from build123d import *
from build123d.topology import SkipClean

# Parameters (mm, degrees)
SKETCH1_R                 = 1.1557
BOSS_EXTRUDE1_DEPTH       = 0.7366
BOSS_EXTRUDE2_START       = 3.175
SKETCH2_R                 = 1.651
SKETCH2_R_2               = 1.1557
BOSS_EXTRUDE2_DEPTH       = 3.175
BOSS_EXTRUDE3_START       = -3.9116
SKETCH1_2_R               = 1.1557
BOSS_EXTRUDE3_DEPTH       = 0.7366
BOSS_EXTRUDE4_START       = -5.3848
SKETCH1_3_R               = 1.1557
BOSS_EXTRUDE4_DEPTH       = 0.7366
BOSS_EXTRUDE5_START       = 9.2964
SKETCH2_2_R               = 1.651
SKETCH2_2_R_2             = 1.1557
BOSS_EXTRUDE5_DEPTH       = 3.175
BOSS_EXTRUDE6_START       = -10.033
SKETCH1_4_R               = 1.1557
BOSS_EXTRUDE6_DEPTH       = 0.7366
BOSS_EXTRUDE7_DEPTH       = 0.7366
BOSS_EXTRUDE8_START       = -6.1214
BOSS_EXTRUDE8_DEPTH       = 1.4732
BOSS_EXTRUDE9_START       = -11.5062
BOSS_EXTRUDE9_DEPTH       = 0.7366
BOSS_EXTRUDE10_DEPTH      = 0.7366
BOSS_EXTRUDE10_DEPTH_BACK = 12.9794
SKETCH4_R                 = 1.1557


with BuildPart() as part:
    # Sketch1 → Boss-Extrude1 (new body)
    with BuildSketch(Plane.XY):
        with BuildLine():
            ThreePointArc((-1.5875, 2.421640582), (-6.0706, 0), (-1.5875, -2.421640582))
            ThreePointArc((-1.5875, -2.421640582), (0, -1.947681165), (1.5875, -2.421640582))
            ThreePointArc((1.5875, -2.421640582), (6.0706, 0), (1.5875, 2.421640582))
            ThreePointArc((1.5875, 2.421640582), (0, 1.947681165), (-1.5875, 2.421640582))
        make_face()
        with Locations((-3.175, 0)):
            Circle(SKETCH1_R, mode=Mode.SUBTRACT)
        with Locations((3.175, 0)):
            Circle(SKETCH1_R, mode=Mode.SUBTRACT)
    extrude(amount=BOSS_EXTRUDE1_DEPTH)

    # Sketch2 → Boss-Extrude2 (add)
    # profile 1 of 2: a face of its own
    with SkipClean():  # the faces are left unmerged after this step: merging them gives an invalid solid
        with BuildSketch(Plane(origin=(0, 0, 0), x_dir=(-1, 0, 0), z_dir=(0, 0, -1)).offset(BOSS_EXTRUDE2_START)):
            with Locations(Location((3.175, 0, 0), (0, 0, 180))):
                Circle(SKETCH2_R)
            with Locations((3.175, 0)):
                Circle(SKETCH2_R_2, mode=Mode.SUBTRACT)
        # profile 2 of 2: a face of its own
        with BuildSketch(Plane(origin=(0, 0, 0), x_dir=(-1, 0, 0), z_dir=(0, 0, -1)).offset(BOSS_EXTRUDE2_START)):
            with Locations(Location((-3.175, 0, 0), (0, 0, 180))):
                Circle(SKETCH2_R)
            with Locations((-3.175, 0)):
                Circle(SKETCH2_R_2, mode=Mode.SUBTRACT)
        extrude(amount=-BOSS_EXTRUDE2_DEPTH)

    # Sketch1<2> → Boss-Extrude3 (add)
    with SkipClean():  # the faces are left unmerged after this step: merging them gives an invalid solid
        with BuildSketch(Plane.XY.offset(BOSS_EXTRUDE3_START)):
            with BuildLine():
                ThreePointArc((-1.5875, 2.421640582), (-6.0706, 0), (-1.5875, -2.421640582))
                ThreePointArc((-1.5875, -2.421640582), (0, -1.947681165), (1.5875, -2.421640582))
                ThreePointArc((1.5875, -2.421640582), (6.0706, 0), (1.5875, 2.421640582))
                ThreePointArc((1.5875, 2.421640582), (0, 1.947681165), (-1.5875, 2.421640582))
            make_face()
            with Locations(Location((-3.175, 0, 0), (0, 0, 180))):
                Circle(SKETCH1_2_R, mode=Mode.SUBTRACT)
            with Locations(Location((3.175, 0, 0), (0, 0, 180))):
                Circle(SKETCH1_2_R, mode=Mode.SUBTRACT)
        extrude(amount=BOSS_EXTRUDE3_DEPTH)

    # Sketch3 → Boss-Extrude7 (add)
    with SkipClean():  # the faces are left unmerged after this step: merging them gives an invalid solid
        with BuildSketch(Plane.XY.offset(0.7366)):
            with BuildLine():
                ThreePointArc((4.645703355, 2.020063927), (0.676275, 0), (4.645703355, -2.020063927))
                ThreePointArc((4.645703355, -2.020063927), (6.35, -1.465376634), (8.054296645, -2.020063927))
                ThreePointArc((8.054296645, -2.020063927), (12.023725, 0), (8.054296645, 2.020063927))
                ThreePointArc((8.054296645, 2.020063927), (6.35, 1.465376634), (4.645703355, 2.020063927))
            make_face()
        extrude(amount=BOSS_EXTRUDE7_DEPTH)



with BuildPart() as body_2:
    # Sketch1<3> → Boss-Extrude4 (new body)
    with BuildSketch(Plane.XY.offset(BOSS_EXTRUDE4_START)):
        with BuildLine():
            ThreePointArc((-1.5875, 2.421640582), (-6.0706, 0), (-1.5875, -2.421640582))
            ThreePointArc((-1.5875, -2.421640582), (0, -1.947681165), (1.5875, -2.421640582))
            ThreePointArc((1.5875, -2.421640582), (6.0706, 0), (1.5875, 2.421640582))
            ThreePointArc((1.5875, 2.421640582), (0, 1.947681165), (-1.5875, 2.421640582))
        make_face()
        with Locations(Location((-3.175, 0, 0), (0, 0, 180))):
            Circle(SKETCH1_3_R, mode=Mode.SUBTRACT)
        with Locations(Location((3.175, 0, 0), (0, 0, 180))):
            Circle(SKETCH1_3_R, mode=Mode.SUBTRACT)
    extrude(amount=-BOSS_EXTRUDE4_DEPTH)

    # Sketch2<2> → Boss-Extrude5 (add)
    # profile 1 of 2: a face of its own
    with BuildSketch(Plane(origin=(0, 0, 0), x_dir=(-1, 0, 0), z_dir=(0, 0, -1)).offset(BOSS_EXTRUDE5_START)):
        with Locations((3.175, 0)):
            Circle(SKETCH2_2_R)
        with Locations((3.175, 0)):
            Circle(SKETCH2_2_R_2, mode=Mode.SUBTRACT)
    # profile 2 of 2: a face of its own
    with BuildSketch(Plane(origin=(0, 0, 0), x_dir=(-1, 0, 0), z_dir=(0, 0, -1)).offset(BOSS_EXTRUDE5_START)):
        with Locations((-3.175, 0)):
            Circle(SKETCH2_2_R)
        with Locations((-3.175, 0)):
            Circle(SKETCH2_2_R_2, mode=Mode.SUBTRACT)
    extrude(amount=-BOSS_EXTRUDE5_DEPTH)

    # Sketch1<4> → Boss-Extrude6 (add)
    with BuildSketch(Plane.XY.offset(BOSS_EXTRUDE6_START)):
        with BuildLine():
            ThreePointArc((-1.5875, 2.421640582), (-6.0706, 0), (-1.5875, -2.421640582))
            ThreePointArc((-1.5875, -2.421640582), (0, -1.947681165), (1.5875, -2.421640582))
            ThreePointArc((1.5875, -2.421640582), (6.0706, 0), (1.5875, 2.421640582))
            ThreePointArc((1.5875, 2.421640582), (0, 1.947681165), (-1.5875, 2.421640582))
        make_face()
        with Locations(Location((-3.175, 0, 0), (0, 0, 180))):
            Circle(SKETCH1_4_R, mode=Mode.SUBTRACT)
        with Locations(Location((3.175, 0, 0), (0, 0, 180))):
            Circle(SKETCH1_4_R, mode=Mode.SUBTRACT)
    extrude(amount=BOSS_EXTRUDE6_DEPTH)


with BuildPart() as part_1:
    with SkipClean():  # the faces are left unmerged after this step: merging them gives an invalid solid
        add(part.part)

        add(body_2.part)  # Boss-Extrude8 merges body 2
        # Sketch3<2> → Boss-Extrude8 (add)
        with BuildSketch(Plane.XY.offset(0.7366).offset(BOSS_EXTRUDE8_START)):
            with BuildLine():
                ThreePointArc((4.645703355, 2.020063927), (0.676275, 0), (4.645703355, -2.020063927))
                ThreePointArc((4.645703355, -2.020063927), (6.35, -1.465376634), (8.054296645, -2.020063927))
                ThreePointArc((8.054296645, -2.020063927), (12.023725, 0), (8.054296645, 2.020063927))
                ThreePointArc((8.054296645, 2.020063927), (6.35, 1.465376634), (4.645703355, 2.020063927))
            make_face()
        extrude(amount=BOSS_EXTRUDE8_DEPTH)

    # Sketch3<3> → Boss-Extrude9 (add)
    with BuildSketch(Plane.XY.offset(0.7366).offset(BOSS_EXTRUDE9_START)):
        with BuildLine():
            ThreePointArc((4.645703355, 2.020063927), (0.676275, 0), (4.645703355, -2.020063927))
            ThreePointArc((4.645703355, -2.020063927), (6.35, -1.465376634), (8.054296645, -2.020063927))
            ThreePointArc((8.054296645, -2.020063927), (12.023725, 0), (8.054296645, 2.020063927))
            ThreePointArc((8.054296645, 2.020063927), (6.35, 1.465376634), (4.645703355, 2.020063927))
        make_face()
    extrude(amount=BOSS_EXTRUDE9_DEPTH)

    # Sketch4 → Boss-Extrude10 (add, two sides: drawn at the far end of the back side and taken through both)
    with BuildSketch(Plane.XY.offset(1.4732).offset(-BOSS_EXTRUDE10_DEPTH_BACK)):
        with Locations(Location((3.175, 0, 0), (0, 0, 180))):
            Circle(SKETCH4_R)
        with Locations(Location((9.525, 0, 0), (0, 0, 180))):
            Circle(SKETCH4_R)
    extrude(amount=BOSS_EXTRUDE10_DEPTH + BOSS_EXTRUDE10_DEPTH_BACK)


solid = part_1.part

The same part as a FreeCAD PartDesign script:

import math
import FreeCAD as App
import Part
import Sketcher
from FreeCAD import Vector
Q = App.Units.Quantity

doc = App.newDocument("Part")
body = doc.addObject("PartDesign::Body", "Body")

# Sketch on XY plane
sketch1 = body.newObject("Sketcher::SketchObject", "Sketch")
sketch1.AttachmentSupport = (doc.getObject("XY_Plane"), [""])
sketch1.MapMode = "FlatFace"
sketch1.addGeometry([
    Part.ArcOfCircle(Part.Circle(Vector(-3.175, 0, 0), Vector(0, 0, 1), 2.8956), math.radians(56.753262), math.radians(303.246738)),  # 0
    Part.ArcOfCircle(Part.Circle(Vector(0, -4.843281, 0), Vector(0, 0, 1), 2.8956), math.radians(56.753262), math.radians(123.246738)),  # 1
    Part.ArcOfCircle(Part.Circle(Vector(3.175, 0, 0), Vector(0, 0, 1), 2.8956), math.radians(-123.246738), math.radians(123.246738)),  # 2
    Part.ArcOfCircle(Part.Circle(Vector(0, 4.843281, 0), Vector(0, 0, 1), 2.8956), math.radians(-123.246738), math.radians(-56.753262)),  # 3
    Part.Circle(Vector(-3.175, 0, 0), Vector(0, 0, 1), 1.1557),  # 4
    Part.Circle(Vector(3.175, 0, 0), Vector(0, 0, 1), 1.1557),  # 5
], False)
sketch1.addConstraint([
    Sketcher.Constraint("Tangent", 0, 2, 1, 2),
    Sketcher.Constraint("Tangent", 1, 1, 2, 1),
    Sketcher.Constraint("Tangent", 2, 2, 3, 2),
    Sketcher.Constraint("Tangent", 3, 1, 0, 1),
    Sketcher.Constraint("Coincident", 4, 3, 0, 3),
    Sketcher.Constraint("Coincident", 5, 3, 2, 3),
    Sketcher.Constraint("Equal", 0, 1),
    Sketcher.Constraint("Equal", 1, 2),
    Sketcher.Constraint("Equal", 2, 3),
    Sketcher.Constraint("Equal", 4, 5),
    Sketcher.Constraint("Symmetric", 0, 3, 2, 3, -1, 1),
    Sketcher.Constraint("PointOnObject", 0, 3, -1),
    Sketcher.Constraint("Diameter", 4, Q("0.091 in")),
    Sketcher.Constraint("Radius", 0, Q("0.114 in")),
    Sketcher.Constraint("DistanceX", 0, 3, 2, 3, Q("0.25 in")),
])
pad1 = body.newObject("PartDesign::Pad", "Pad")
pad1.Profile = sketch1
pad1.Length = Q("0.029 in")

# Sketch on XY plane
sketch2 = body.newObject("Sketcher::SketchObject", "Sketch001")
sketch2.AttachmentSupport = (doc.getObject("XY_Plane"), [""])
sketch2.MapMode = "FlatFace"
sketch2.AttachmentOffset = App.Placement(Vector(0, 0, -0.125 * 25.4), App.Rotation())
sketch2.addGeometry([
    Part.Circle(Vector(-3.175, 0, 0), Vector(0, 0, 1), 1.651),
    Part.Circle(Vector(-3.175, 0, 0), Vector(0, 0, 1), 1.1557),
    Part.Circle(Vector(3.175, 0, 0), Vector(0, 0, 1), 1.651),
    Part.Circle(Vector(3.175, 0, 0), Vector(0, 0, 1), 1.1557),
], False)
sketch2.addConstraint([
    Sketcher.Constraint("Coincident", 1, 3, 0, 3),
    Sketcher.Constraint("Coincident", 3, 3, 2, 3),
    Sketcher.Constraint("Equal", 0, 2),
    Sketcher.Constraint("Equal", 1, 3),
    Sketcher.Constraint("Symmetric", 0, 3, 2, 3, -1, 1),
    Sketcher.Constraint("PointOnObject", 0, 3, -1),
    Sketcher.Constraint("Diameter", 0, Q("0.13 in")),
    Sketcher.Constraint("Diameter", 1, Q("0.091 in")),
    Sketcher.Constraint("DistanceX", 0, 3, 2, 3, Q("0.25 in")),
])
pad2 = body.newObject("PartDesign::Pad", "Pad001")
pad2.Profile = sketch2
pad2.Length = Q("0.125 in")

# Sketch on XY plane
sketch3 = body.newObject("Sketcher::SketchObject", "Sketch002")
sketch3.AttachmentSupport = (doc.getObject("XY_Plane"), [""])
sketch3.MapMode = "FlatFace"
sketch3.AttachmentOffset = App.Placement(Vector(0, 0, -0.154 * 25.4), App.Rotation())
sketch3.addGeometry([
    Part.ArcOfCircle(Part.Circle(Vector(-3.175, 0, 0), Vector(0, 0, 1), 2.8956), math.radians(56.753262), math.radians(303.246738)),  # 0
    Part.ArcOfCircle(Part.Circle(Vector(0, -4.843281, 0), Vector(0, 0, 1), 2.8956), math.radians(56.753262), math.radians(123.246738)),  # 1
    Part.ArcOfCircle(Part.Circle(Vector(3.175, 0, 0), Vector(0, 0, 1), 2.8956), math.radians(-123.246738), math.radians(123.246738)),  # 2
    Part.ArcOfCircle(Part.Circle(Vector(0, 4.843281, 0), Vector(0, 0, 1), 2.8956), math.radians(-123.246738), math.radians(-56.753262)),  # 3
    Part.Circle(Vector(-3.175, 0, 0), Vector(0, 0, 1), 1.1557),  # 4
    Part.Circle(Vector(3.175, 0, 0), Vector(0, 0, 1), 1.1557),  # 5
], False)
sketch3.addConstraint([
    Sketcher.Constraint("Tangent", 0, 2, 1, 2),
    Sketcher.Constraint("Tangent", 1, 1, 2, 1),
    Sketcher.Constraint("Tangent", 2, 2, 3, 2),
    Sketcher.Constraint("Tangent", 3, 1, 0, 1),
    Sketcher.Constraint("Coincident", 4, 3, 0, 3),
    Sketcher.Constraint("Coincident", 5, 3, 2, 3),
    Sketcher.Constraint("Equal", 0, 1),
    Sketcher.Constraint("Equal", 1, 2),
    Sketcher.Constraint("Equal", 2, 3),
    Sketcher.Constraint("Equal", 4, 5),
    Sketcher.Constraint("Symmetric", 0, 3, 2, 3, -1, 1),
    Sketcher.Constraint("PointOnObject", 0, 3, -1),
    Sketcher.Constraint("Diameter", 4, Q("0.091 in")),
    Sketcher.Constraint("Radius", 0, Q("0.114 in")),
    Sketcher.Constraint("DistanceX", 0, 3, 2, 3, Q("0.25 in")),
])
pad3 = body.newObject("PartDesign::Pad", "Pad002")
pad3.Profile = sketch3
pad3.Length = Q("0.029 in")

# Sketch on XY plane
sketch4 = body.newObject("Sketcher::SketchObject", "Sketch003")
sketch4.AttachmentSupport = (doc.getObject("XY_Plane"), [""])
sketch4.MapMode = "FlatFace"
sketch4.AttachmentOffset = App.Placement(Vector(0, 0, 0.029 * 25.4), App.Rotation())
sketch4.addGeometry([
    Part.ArcOfCircle(Part.Circle(Vector(3.175, 0, 0), Vector(0, 0, 1), 2.498725), math.radians(53.943587), math.radians(306.056413)),
    Part.ArcOfCircle(Part.Circle(Vector(6.35, -4.360977, 0), Vector(0, 0, 1), 2.8956), math.radians(53.943587), math.radians(126.056413)),
    Part.ArcOfCircle(Part.Circle(Vector(9.525, 0, 0), Vector(0, 0, 1), 2.498725), math.radians(-126.056413), math.radians(126.056413)),
    Part.ArcOfCircle(Part.Circle(Vector(6.35, 4.360977, 0), Vector(0, 0, 1), 2.8956), math.radians(-126.056413), math.radians(-53.943587)),
], False)
sketch4.addConstraint([
    Sketcher.Constraint("Tangent", 0, 2, 1, 2),
    Sketcher.Constraint("Tangent", 1, 1, 2, 1),
    Sketcher.Constraint("Tangent", 2, 2, 3, 2),
    Sketcher.Constraint("Tangent", 3, 1, 0, 1),
    Sketcher.Constraint("Equal", 0, 2),
    Sketcher.Constraint("Equal", 1, 3),
    Sketcher.Constraint("Symmetric", 1, 3, 3, 3, -1),
    Sketcher.Constraint("Radius", 1, Q("0.114 in")),
    Sketcher.Constraint("DistanceX", -1, 1, 1, 3, Q("0.25 in")),
    Sketcher.Constraint("DistanceX", 0, 3, 2, 3, Q("0.25 in")),
    Sketcher.Constraint("Radius", 0, Q("2.498725 mm")),
])
pad4 = body.newObject("PartDesign::Pad", "Pad003")
pad4.Profile = sketch4
pad4.Length = Q("0.029 in")
body2 = doc.addObject("PartDesign::Body", "Body001")

# Sketch on XY plane
sketch5 = body2.newObject("Sketcher::SketchObject", "Sketch004")
sketch5.AttachmentSupport = (doc.getObject("XY_Plane001"), [""])
sketch5.MapMode = "FlatFace"
sketch5.AttachmentOffset = App.Placement(Vector(0, 0, -0.212 * 25.4), App.Rotation())
sketch5.addGeometry([
    Part.ArcOfCircle(Part.Circle(Vector(-3.175, 0, 0), Vector(0, 0, 1), 2.8956), math.radians(56.753262), math.radians(303.246738)),  # 0
    Part.ArcOfCircle(Part.Circle(Vector(0, -4.843281, 0), Vector(0, 0, 1), 2.8956), math.radians(56.753262), math.radians(123.246738)),  # 1
    Part.ArcOfCircle(Part.Circle(Vector(3.175, 0, 0), Vector(0, 0, 1), 2.8956), math.radians(-123.246738), math.radians(123.246738)),  # 2
    Part.ArcOfCircle(Part.Circle(Vector(0, 4.843281, 0), Vector(0, 0, 1), 2.8956), math.radians(-123.246738), math.radians(-56.753262)),  # 3
    Part.Circle(Vector(-3.175, 0, 0), Vector(0, 0, 1), 1.1557),  # 4
    Part.Circle(Vector(3.175, 0, 0), Vector(0, 0, 1), 1.1557),  # 5
], False)
sketch5.addConstraint([
    Sketcher.Constraint("Tangent", 0, 2, 1, 2),
    Sketcher.Constraint("Tangent", 1, 1, 2, 1),
    Sketcher.Constraint("Tangent", 2, 2, 3, 2),
    Sketcher.Constraint("Tangent", 3, 1, 0, 1),
    Sketcher.Constraint("Coincident", 4, 3, 0, 3),
    Sketcher.Constraint("Coincident", 5, 3, 2, 3),
    Sketcher.Constraint("Equal", 0, 1),
    Sketcher.Constraint("Equal", 1, 2),
    Sketcher.Constraint("Equal", 2, 3),
    Sketcher.Constraint("Equal", 4, 5),
    Sketcher.Constraint("Symmetric", 0, 3, 2, 3, -1, 1),
    Sketcher.Constraint("PointOnObject", 0, 3, -1),
    Sketcher.Constraint("Diameter", 4, Q("0.091 in")),
    Sketcher.Constraint("Radius", 0, Q("0.114 in")),
    Sketcher.Constraint("DistanceX", 0, 3, 2, 3, Q("0.25 in")),
])
pad5 = body2.newObject("PartDesign::Pad", "Pad004")
pad5.Profile = sketch5
pad5.Length = Q("0.029 in")
pad5.Reversed = True

# Sketch on XY plane
sketch6 = body2.newObject("Sketcher::SketchObject", "Sketch005")
sketch6.AttachmentSupport = (doc.getObject("XY_Plane001"), [""])
sketch6.MapMode = "FlatFace"
sketch6.AttachmentOffset = App.Placement(Vector(0, 0, -0.366 * 25.4), App.Rotation())
sketch6.addGeometry([
    Part.Circle(Vector(-3.175, 0, 0), Vector(0, 0, 1), 1.651),
    Part.Circle(Vector(-3.175, 0, 0), Vector(0, 0, 1), 1.1557),
    Part.Circle(Vector(3.175, 0, 0), Vector(0, 0, 1), 1.651),
    Part.Circle(Vector(3.175, 0, 0), Vector(0, 0, 1), 1.1557),
], False)
sketch6.addConstraint([
    Sketcher.Constraint("Coincident", 1, 3, 0, 3),
    Sketcher.Constraint("Coincident", 3, 3, 2, 3),
    Sketcher.Constraint("Equal", 0, 2),
    Sketcher.Constraint("Equal", 1, 3),
    Sketcher.Constraint("Symmetric", 0, 3, 2, 3, -1, 1),
    Sketcher.Constraint("PointOnObject", 0, 3, -1),
    Sketcher.Constraint("Diameter", 0, Q("0.13 in")),
    Sketcher.Constraint("Diameter", 1, Q("0.091 in")),
    Sketcher.Constraint("DistanceX", 0, 3, 2, 3, Q("0.25 in")),
])
pad6 = body2.newObject("PartDesign::Pad", "Pad005")
pad6.Profile = sketch6
pad6.Length = Q("0.125 in")

# Sketch on XY plane
sketch7 = body2.newObject("Sketcher::SketchObject", "Sketch006")
sketch7.AttachmentSupport = (doc.getObject("XY_Plane001"), [""])
sketch7.MapMode = "FlatFace"
sketch7.AttachmentOffset = App.Placement(Vector(0, 0, -0.395 * 25.4), App.Rotation())
sketch7.addGeometry([
    Part.ArcOfCircle(Part.Circle(Vector(-3.175, 0, 0), Vector(0, 0, 1), 2.8956), math.radians(56.753262), math.radians(303.246738)),  # 0
    Part.ArcOfCircle(Part.Circle(Vector(0, -4.843281, 0), Vector(0, 0, 1), 2.8956), math.radians(56.753262), math.radians(123.246738)),  # 1
    Part.ArcOfCircle(Part.Circle(Vector(3.175, 0, 0), Vector(0, 0, 1), 2.8956), math.radians(-123.246738), math.radians(123.246738)),  # 2
    Part.ArcOfCircle(Part.Circle(Vector(0, 4.843281, 0), Vector(0, 0, 1), 2.8956), math.radians(-123.246738), math.radians(-56.753262)),  # 3
    Part.Circle(Vector(-3.175, 0, 0), Vector(0, 0, 1), 1.1557),  # 4
    Part.Circle(Vector(3.175, 0, 0), Vector(0, 0, 1), 1.1557),  # 5
], False)
sketch7.addConstraint([
    Sketcher.Constraint("Tangent", 0, 2, 1, 2),
    Sketcher.Constraint("Tangent", 1, 1, 2, 1),
    Sketcher.Constraint("Tangent", 2, 2, 3, 2),
    Sketcher.Constraint("Tangent", 3, 1, 0, 1),
    Sketcher.Constraint("Coincident", 4, 3, 0, 3),
    Sketcher.Constraint("Coincident", 5, 3, 2, 3),
    Sketcher.Constraint("Equal", 0, 1),
    Sketcher.Constraint("Equal", 1, 2),
    Sketcher.Constraint("Equal", 2, 3),
    Sketcher.Constraint("Equal", 4, 5),
    Sketcher.Constraint("Symmetric", 0, 3, 2, 3, -1, 1),
    Sketcher.Constraint("PointOnObject", 0, 3, -1),
    Sketcher.Constraint("Diameter", 4, Q("0.091 in")),
    Sketcher.Constraint("Radius", 0, Q("0.114 in")),
    Sketcher.Constraint("DistanceX", 0, 3, 2, 3, Q("0.25 in")),
])
pad7 = body2.newObject("PartDesign::Pad", "Pad006")
pad7.Profile = sketch7
pad7.Length = Q("0.029 in")
body.AllowCompound = True
doc.recompute()

boolean = body.newObject("PartDesign::Boolean", "Boolean")
boolean.Type = "Fuse"
boolean.addObjects([body2])

# Sketch on XY plane
sketch8 = body.newObject("Sketcher::SketchObject", "Sketch007")
sketch8.AttachmentSupport = (doc.getObject("XY_Plane"), [""])
sketch8.MapMode = "FlatFace"
sketch8.AttachmentOffset = App.Placement(Vector(0, 0, -0.212 * 25.4), App.Rotation())
sketch8.addGeometry([
    Part.ArcOfCircle(Part.Circle(Vector(3.175, 0, 0), Vector(0, 0, 1), 2.498725), math.radians(53.943587), math.radians(306.056413)),
    Part.ArcOfCircle(Part.Circle(Vector(6.35, -4.360977, 0), Vector(0, 0, 1), 2.8956), math.radians(53.943587), math.radians(126.056413)),
    Part.ArcOfCircle(Part.Circle(Vector(9.525, 0, 0), Vector(0, 0, 1), 2.498725), math.radians(-126.056413), math.radians(126.056413)),
    Part.ArcOfCircle(Part.Circle(Vector(6.35, 4.360977, 0), Vector(0, 0, 1), 2.8956), math.radians(-126.056413), math.radians(-53.943587)),
], False)
sketch8.addConstraint([
    Sketcher.Constraint("Tangent", 0, 2, 1, 2),
    Sketcher.Constraint("Tangent", 1, 1, 2, 1),
    Sketcher.Constraint("Tangent", 2, 2, 3, 2),
    Sketcher.Constraint("Tangent", 3, 1, 0, 1),
    Sketcher.Constraint("Equal", 0, 2),
    Sketcher.Constraint("Equal", 1, 3),
    Sketcher.Constraint("Symmetric", 1, 3, 3, 3, -1),
    Sketcher.Constraint("Radius", 1, Q("0.114 in")),
    Sketcher.Constraint("DistanceX", -1, 1, 1, 3, Q("0.25 in")),
    Sketcher.Constraint("DistanceX", 0, 3, 2, 3, Q("0.25 in")),
    Sketcher.Constraint("Radius", 0, Q("2.498725 mm")),
])
pad8 = body.newObject("PartDesign::Pad", "Pad007")
pad8.Profile = sketch8
pad8.Length = Q("0.058 in")

# Sketch on XY plane
sketch9 = body.newObject("Sketcher::SketchObject", "Sketch008")
sketch9.AttachmentSupport = (doc.getObject("XY_Plane"), [""])
sketch9.MapMode = "FlatFace"
sketch9.AttachmentOffset = App.Placement(Vector(0, 0, -0.424 * 25.4), App.Rotation())
sketch9.addGeometry([
    Part.ArcOfCircle(Part.Circle(Vector(3.175, 0, 0), Vector(0, 0, 1), 2.498725), math.radians(53.943587), math.radians(306.056413)),
    Part.ArcOfCircle(Part.Circle(Vector(6.35, -4.360977, 0), Vector(0, 0, 1), 2.8956), math.radians(53.943587), math.radians(126.056413)),
    Part.ArcOfCircle(Part.Circle(Vector(9.525, 0, 0), Vector(0, 0, 1), 2.498725), math.radians(-126.056413), math.radians(126.056413)),
    Part.ArcOfCircle(Part.Circle(Vector(6.35, 4.360977, 0), Vector(0, 0, 1), 2.8956), math.radians(-126.056413), math.radians(-53.943587)),
], False)
sketch9.addConstraint([
    Sketcher.Constraint("Tangent", 0, 2, 1, 2),
    Sketcher.Constraint("Tangent", 1, 1, 2, 1),
    Sketcher.Constraint("Tangent", 2, 2, 3, 2),
    Sketcher.Constraint("Tangent", 3, 1, 0, 1),
    Sketcher.Constraint("Equal", 0, 2),
    Sketcher.Constraint("Equal", 1, 3),
    Sketcher.Constraint("Symmetric", 1, 3, 3, 3, -1),
    Sketcher.Constraint("Radius", 1, Q("0.114 in")),
    Sketcher.Constraint("DistanceX", -1, 1, 1, 3, Q("0.25 in")),
    Sketcher.Constraint("DistanceX", 0, 3, 2, 3, Q("0.25 in")),
    Sketcher.Constraint("Radius", 0, Q("2.498725 mm")),
])
pad9 = body.newObject("PartDesign::Pad", "Pad008")
pad9.Profile = sketch9
pad9.Length = Q("0.029 in")

# Sketch on XY plane
sketch10 = body.newObject("Sketcher::SketchObject", "Sketch009")
sketch10.AttachmentSupport = (doc.getObject("XY_Plane"), [""])
sketch10.MapMode = "FlatFace"
sketch10.AttachmentOffset = App.Placement(Vector(0, 0, 0.058 * 25.4), App.Rotation())
sketch10.addGeometry([
    Part.Circle(Vector(3.175, 0, 0), Vector(0, 0, 1), 1.1557),
    Part.Circle(Vector(9.525, 0, 0), Vector(0, 0, 1), 1.1557),
], False)
sketch10.addConstraint([
    Sketcher.Constraint("Equal", 0, 1),
    Sketcher.Constraint("PointOnObject", 0, 3, -1),
    Sketcher.Constraint("PointOnObject", 1, 3, -1),
    Sketcher.Constraint("Diameter", 0, Q("0.091 in")),
    Sketcher.Constraint("DistanceX", 0, 3, 1, 3, Q("0.25 in")),
    Sketcher.Constraint("DistanceX", -1, 1, 0, 3, Q("0.125 in")),
])
pad10 = body.newObject("PartDesign::Pad", "Pad009")
pad10.Profile = sketch10
pad10.Type = "TwoLengths"
pad10.Length = Q("0.029 in")
pad10.Length2 = Q("0.511 in")

doc.recompute()
